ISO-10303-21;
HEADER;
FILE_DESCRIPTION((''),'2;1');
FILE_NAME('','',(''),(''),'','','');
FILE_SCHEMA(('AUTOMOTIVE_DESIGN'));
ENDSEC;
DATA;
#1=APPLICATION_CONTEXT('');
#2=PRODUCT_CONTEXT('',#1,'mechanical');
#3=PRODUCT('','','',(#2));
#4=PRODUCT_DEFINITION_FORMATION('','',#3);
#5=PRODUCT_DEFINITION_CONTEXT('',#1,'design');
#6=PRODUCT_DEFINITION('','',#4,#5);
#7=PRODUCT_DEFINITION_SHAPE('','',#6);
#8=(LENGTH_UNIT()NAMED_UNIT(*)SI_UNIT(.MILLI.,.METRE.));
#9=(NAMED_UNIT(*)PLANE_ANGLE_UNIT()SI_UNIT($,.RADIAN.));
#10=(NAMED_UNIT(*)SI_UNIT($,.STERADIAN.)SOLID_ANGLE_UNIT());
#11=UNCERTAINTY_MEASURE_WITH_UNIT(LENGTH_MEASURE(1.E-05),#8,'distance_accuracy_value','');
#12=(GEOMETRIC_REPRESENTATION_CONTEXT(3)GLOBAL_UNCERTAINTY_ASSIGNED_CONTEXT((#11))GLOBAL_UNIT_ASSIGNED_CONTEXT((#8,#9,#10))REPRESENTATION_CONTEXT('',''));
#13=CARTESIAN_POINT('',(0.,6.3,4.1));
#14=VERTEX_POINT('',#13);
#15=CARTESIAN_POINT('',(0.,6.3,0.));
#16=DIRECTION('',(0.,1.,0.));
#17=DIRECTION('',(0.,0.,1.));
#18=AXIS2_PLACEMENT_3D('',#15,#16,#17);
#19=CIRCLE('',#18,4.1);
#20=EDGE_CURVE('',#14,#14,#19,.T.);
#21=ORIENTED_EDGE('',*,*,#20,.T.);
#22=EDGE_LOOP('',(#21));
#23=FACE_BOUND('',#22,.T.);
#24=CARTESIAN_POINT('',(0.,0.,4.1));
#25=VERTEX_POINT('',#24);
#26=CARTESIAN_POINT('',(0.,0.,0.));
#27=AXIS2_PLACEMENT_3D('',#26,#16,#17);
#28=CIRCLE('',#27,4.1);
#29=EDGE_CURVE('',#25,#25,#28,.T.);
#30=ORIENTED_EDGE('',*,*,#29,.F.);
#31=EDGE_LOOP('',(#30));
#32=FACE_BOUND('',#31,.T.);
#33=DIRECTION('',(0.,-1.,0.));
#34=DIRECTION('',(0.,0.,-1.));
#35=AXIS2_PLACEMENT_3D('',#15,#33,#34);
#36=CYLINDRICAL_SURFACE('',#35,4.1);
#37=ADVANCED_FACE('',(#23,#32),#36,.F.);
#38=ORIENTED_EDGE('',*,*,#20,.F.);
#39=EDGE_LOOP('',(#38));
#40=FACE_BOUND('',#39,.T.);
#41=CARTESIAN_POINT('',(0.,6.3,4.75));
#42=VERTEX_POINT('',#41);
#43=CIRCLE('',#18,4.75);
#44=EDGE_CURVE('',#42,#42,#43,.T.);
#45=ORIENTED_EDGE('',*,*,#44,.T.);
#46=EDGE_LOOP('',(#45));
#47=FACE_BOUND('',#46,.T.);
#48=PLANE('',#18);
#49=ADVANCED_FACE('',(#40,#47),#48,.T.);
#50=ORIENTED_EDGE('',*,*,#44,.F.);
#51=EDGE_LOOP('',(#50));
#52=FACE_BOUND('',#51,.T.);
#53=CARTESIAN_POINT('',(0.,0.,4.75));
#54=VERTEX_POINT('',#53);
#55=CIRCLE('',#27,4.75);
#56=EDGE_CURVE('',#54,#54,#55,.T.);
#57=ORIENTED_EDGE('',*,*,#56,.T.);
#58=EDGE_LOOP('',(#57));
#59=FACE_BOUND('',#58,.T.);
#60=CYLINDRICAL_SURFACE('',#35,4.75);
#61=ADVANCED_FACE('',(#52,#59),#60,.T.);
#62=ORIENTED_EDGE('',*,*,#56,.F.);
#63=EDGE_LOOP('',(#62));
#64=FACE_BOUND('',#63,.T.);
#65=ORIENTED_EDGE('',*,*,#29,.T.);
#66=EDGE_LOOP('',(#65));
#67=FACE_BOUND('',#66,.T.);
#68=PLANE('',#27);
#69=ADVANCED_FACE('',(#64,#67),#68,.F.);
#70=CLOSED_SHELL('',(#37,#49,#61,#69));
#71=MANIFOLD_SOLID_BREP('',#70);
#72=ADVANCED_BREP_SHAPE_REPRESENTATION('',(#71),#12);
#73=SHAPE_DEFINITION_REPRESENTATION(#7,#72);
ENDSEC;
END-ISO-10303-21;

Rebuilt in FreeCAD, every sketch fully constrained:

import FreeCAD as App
import Part
import Sketcher

V = App.Vector
Q = App.Units.Quantity

doc = App.newDocument("Part")
body = doc.addObject("PartDesign::Body", "Body")

# Sketch on XZ plane
sketch1 = doc.addObject("Sketcher::SketchObject", "Sketch")
body.addObject(sketch1)
sketch1.AttachmentSupport = (doc.XZ_Plane, [""])
sketch1.MapMode = "FlatFace"
sketch1.addGeometry([
    Part.Circle(V(0, 0, 0), V(0, 0, 1), 4.75),
    Part.Circle(V(0, 0, 0), V(0, 0, 1), 4.1),
], False)
sketch1.addConstraint([
    Sketcher.Constraint("Coincident", 0, 3, -1, 1),
    Sketcher.Constraint("Coincident", 1, 3, -1, 1),
    Sketcher.Constraint("Diameter", 0, Q("9.5 mm")),
    Sketcher.Constraint("Diameter", 1, Q("8.2 mm")),
])
pad1 = doc.addObject("PartDesign::Pad", "Pad")
body.addObject(pad1)
pad1.Profile = sketch1
pad1.Length = 6.3
pad1.Reversed = True

doc.recompute()
